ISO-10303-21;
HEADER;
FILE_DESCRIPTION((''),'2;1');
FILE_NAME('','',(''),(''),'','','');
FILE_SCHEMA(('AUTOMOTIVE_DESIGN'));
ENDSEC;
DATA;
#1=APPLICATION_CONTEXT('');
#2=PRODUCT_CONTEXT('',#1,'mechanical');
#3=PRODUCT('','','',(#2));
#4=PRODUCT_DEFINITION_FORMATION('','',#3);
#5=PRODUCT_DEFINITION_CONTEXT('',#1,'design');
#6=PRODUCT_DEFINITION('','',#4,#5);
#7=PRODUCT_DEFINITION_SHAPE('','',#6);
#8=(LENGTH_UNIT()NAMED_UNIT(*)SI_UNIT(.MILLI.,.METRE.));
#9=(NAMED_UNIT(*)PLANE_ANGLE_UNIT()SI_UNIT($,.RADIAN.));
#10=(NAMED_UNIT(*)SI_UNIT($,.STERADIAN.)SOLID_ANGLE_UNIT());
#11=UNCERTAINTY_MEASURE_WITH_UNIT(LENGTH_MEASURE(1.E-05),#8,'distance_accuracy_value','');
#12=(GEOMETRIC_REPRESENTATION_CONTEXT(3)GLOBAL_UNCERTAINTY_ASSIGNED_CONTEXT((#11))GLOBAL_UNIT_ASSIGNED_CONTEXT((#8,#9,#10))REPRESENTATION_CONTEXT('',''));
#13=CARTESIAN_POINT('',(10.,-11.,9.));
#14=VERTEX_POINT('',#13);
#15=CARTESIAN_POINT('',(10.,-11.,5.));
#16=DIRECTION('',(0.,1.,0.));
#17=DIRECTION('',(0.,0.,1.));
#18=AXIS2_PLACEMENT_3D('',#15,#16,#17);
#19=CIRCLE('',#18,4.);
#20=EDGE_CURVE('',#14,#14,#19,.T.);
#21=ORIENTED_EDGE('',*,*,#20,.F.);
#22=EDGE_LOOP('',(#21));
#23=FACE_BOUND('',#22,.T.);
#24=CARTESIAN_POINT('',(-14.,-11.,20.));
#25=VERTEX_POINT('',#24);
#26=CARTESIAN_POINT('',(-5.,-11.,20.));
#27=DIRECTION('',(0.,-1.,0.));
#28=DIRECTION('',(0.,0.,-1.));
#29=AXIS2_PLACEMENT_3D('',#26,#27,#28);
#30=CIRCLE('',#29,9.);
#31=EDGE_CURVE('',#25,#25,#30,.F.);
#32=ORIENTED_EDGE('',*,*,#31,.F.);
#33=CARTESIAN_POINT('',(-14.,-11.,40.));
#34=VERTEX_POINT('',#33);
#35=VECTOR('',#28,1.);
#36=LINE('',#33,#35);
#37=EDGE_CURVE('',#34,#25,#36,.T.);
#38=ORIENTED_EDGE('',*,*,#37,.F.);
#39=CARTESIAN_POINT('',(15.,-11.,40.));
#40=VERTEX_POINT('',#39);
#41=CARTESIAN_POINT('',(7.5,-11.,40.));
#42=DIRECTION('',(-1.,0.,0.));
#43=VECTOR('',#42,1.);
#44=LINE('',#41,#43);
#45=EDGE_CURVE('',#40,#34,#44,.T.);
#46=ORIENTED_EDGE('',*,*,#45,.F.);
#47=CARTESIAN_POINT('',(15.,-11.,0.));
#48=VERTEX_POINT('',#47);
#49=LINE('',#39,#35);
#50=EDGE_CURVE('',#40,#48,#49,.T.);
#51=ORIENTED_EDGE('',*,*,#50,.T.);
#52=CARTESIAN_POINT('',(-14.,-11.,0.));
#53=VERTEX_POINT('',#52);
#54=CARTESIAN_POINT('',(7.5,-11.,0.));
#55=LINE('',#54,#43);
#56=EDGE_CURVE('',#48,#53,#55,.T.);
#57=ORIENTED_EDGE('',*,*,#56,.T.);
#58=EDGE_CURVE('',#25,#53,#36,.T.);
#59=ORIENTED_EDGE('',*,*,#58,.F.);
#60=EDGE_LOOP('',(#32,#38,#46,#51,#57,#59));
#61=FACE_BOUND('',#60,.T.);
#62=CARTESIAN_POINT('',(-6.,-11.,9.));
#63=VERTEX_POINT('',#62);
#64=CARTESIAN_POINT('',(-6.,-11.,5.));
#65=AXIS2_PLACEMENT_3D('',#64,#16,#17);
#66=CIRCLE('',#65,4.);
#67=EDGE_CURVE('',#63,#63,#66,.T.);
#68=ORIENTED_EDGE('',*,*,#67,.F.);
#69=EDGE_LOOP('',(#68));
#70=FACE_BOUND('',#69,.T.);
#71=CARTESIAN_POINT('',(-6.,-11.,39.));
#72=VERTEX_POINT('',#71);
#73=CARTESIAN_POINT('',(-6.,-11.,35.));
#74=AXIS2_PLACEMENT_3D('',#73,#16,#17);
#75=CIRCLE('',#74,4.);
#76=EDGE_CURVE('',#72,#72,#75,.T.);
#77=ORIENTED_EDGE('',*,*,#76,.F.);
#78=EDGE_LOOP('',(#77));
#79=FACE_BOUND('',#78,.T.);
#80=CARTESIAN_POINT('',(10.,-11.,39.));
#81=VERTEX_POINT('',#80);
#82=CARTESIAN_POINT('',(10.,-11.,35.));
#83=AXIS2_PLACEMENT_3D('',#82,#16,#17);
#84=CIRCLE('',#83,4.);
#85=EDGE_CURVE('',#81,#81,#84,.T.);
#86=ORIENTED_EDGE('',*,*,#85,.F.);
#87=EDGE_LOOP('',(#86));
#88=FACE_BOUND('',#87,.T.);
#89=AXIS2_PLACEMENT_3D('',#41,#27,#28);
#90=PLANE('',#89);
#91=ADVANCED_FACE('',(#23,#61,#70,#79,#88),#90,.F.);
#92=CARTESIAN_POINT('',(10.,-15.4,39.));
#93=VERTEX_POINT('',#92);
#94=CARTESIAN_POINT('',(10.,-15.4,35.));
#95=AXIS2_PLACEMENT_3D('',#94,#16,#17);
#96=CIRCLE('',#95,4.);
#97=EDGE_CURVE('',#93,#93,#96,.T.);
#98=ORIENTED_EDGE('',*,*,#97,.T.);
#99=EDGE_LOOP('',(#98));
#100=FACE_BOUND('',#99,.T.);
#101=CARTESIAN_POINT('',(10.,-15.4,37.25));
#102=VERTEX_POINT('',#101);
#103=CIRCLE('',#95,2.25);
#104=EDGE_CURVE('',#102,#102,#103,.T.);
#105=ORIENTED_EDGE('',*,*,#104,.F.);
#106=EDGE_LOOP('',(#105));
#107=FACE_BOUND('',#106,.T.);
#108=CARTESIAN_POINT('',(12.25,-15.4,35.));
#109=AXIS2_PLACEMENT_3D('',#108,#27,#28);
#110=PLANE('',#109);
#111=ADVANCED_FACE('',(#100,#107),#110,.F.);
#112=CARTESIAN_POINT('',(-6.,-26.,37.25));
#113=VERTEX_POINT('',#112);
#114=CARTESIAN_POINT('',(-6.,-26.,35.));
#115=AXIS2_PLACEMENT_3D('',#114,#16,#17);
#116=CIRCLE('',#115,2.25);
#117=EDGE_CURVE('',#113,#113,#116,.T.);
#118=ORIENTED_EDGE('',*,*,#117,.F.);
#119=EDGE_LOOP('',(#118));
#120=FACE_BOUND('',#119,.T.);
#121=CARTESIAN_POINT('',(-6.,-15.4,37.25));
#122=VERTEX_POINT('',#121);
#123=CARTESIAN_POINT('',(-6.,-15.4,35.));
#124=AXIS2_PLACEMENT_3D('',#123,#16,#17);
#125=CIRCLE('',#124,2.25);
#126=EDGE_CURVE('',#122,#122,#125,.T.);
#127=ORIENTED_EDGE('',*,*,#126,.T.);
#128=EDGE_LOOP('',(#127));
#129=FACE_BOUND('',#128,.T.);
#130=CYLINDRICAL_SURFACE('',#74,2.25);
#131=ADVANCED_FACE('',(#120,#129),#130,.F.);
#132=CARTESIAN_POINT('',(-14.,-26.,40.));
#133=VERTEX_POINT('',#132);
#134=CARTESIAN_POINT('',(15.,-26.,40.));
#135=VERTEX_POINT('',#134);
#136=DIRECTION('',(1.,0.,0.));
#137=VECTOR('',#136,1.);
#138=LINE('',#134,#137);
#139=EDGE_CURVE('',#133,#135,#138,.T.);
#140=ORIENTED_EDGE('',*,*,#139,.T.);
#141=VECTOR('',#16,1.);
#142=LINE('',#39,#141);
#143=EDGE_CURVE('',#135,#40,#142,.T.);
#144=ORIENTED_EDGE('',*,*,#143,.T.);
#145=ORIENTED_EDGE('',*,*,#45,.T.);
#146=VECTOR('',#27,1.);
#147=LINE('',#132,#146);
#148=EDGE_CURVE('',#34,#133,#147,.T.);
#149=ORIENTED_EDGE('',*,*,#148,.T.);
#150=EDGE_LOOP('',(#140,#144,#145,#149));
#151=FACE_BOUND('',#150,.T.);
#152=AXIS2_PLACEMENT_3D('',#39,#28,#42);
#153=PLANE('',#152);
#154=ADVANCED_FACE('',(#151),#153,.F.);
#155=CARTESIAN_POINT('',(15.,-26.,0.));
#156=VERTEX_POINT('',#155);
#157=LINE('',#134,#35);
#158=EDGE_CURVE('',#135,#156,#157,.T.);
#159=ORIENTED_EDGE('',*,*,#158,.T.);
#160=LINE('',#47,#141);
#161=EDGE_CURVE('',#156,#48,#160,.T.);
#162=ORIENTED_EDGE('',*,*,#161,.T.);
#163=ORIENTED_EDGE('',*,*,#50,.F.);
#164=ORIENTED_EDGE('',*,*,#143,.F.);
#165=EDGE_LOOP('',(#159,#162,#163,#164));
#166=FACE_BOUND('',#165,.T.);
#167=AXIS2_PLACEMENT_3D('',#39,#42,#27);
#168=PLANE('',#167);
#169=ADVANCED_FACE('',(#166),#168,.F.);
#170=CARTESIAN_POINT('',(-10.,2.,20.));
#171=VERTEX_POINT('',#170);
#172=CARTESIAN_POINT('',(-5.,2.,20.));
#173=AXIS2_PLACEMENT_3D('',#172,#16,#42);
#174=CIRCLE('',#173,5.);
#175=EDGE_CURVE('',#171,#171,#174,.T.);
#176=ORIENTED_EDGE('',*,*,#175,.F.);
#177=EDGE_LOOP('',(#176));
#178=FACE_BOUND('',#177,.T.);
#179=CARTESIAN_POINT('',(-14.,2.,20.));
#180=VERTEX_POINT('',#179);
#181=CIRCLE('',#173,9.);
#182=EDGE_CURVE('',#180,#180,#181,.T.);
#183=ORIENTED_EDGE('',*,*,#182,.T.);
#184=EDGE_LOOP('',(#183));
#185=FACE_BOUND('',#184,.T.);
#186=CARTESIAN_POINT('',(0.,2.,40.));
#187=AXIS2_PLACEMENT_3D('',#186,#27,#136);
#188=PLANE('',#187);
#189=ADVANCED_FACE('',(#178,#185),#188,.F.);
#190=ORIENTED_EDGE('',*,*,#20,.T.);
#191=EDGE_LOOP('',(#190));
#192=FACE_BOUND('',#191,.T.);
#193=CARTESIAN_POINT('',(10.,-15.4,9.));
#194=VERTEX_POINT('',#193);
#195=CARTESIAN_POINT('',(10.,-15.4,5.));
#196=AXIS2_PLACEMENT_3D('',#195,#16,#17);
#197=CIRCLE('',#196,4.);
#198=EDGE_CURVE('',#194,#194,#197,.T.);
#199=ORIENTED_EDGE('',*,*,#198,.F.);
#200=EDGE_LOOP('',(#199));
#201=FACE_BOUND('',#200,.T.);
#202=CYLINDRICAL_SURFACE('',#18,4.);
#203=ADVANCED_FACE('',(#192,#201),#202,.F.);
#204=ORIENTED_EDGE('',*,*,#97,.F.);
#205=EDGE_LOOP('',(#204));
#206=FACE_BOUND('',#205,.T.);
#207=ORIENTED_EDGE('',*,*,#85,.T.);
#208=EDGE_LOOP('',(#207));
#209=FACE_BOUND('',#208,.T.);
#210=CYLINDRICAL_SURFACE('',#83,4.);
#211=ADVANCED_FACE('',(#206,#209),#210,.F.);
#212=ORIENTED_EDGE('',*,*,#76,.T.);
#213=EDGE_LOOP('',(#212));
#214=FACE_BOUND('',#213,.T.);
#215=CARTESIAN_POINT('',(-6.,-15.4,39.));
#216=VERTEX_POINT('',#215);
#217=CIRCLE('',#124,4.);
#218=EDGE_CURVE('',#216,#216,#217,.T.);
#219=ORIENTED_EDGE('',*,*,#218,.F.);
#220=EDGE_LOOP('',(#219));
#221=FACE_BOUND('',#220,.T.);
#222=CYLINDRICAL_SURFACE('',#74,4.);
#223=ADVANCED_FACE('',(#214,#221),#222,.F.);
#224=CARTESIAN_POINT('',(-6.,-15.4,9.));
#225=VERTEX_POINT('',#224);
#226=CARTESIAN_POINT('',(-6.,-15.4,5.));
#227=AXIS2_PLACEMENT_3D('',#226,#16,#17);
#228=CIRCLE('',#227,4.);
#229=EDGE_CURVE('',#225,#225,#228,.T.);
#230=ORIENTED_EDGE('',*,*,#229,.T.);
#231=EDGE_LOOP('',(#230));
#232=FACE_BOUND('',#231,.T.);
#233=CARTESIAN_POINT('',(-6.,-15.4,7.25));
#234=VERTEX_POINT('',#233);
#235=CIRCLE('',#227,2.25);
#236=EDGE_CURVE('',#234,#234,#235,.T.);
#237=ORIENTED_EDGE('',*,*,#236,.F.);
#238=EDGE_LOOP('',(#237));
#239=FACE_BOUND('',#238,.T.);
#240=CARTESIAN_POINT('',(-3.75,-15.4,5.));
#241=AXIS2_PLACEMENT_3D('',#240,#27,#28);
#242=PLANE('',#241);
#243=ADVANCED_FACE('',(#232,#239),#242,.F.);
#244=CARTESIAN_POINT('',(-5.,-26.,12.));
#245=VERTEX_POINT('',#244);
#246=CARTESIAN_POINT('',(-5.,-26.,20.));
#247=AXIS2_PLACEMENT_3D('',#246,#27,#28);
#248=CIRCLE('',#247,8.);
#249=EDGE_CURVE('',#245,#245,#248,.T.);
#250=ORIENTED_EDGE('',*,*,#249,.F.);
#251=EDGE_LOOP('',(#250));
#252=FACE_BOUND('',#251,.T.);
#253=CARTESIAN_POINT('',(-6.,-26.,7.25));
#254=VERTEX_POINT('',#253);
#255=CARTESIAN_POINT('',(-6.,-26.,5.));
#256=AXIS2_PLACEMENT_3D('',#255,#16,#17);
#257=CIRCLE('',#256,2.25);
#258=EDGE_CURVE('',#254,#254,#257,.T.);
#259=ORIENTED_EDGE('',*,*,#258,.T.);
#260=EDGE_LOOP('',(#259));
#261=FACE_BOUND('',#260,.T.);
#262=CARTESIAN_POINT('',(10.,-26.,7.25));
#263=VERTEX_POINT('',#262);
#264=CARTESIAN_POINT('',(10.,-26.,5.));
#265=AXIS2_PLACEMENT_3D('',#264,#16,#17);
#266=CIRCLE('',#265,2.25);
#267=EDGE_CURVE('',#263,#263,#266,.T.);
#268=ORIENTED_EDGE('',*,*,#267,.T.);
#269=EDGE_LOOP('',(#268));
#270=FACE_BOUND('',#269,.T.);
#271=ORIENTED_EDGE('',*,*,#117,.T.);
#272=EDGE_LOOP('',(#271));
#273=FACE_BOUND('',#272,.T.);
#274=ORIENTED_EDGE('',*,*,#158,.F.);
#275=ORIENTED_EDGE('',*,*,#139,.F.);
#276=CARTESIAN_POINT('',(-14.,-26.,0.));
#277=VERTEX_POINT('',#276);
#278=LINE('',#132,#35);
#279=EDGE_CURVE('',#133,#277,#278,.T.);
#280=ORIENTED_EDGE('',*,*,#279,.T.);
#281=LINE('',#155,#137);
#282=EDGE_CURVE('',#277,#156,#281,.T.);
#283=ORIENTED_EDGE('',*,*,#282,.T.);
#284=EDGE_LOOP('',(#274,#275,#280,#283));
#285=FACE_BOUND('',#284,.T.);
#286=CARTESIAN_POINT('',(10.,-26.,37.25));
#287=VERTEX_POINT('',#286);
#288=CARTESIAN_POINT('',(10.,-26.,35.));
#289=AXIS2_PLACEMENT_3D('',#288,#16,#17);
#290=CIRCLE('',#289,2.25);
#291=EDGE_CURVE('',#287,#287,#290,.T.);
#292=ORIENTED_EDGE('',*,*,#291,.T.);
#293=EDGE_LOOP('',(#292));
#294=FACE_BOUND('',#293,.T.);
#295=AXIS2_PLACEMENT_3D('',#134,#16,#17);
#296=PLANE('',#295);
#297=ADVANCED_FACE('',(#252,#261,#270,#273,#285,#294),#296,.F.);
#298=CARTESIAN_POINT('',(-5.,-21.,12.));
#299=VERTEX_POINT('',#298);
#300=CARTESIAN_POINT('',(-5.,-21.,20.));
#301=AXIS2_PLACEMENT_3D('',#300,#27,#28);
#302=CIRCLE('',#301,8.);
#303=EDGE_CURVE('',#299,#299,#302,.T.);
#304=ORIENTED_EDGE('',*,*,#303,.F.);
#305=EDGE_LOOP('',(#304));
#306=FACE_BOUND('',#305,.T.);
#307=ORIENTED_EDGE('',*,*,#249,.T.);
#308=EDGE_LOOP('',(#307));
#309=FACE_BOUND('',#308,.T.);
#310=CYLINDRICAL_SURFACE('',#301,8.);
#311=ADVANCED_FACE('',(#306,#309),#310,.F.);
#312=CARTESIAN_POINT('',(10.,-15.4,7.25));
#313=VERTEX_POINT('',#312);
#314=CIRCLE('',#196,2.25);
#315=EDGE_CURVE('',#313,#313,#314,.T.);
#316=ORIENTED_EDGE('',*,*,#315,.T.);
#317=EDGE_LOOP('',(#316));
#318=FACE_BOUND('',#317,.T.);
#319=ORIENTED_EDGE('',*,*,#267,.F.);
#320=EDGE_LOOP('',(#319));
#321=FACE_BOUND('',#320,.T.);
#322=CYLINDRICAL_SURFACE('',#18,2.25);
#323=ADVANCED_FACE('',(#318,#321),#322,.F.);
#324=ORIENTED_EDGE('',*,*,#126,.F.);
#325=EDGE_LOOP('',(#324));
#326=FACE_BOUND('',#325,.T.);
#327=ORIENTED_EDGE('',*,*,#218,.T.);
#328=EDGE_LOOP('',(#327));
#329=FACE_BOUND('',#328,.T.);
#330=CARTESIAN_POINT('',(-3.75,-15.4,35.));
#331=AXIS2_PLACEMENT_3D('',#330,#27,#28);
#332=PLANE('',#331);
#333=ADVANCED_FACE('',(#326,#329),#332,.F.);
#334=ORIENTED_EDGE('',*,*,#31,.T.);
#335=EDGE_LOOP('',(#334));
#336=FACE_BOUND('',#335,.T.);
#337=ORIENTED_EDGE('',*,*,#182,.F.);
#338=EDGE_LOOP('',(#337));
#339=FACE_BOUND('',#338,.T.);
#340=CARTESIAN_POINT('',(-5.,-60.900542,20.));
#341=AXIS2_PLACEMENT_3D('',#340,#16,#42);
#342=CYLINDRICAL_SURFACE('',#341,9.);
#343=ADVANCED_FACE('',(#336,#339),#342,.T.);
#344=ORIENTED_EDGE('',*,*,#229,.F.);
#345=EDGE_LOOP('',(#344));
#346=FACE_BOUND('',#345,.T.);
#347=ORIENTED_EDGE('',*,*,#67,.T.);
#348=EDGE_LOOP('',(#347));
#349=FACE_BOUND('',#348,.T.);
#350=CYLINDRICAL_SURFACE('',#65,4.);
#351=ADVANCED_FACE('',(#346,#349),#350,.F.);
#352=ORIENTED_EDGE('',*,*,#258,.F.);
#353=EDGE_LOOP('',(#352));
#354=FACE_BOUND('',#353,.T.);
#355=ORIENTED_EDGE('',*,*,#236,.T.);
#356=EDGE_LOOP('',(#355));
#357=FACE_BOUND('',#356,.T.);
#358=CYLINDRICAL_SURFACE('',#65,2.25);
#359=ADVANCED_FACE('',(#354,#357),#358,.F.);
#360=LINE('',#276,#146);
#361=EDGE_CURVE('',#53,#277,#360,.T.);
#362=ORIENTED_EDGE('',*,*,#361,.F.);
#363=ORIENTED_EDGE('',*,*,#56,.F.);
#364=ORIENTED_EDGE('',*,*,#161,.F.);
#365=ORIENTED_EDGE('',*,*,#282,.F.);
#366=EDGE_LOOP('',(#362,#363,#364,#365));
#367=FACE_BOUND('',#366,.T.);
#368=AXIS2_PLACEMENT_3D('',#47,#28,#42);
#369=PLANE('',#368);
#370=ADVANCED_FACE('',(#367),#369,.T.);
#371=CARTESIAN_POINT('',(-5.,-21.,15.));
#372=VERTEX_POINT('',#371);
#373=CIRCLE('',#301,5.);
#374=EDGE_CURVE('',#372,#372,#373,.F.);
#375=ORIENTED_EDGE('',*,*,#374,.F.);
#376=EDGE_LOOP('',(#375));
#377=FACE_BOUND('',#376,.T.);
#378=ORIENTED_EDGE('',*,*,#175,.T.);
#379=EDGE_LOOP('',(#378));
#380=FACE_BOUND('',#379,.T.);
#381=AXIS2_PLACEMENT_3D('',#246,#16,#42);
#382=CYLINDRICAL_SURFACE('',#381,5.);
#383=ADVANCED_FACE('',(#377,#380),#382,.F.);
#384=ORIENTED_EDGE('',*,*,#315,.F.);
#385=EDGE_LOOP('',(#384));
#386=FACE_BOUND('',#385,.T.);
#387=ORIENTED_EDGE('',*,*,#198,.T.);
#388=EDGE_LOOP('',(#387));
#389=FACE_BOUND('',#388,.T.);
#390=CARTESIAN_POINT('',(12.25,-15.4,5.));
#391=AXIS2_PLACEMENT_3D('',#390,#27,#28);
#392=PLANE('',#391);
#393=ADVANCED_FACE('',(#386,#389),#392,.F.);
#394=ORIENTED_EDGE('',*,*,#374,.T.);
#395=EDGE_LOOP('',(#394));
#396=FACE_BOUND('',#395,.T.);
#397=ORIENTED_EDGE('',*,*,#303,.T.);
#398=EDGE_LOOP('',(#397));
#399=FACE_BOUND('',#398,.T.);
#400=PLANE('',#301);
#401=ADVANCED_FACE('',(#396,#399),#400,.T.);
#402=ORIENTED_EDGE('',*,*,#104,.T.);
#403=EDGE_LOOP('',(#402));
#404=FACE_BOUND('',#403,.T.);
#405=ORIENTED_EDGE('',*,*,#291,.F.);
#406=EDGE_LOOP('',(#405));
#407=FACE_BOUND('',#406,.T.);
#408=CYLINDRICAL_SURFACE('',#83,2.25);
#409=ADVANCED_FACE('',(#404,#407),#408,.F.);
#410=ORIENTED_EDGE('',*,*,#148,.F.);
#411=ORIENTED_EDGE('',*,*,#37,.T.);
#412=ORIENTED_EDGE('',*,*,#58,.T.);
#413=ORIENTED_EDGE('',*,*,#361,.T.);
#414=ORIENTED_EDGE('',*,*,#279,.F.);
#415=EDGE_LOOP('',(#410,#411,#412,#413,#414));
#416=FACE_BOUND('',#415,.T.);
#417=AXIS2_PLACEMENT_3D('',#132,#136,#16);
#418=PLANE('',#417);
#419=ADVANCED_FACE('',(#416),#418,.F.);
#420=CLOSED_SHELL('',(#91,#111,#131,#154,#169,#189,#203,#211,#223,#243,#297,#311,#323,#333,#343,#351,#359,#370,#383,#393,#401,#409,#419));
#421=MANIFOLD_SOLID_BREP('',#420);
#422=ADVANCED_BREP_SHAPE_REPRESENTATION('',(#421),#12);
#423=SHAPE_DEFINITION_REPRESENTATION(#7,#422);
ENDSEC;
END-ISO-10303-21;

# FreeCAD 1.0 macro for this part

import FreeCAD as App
import Part
import Sketcher

V = App.Vector

doc = App.newDocument("Part")
params = doc.addObject("Spreadsheet::Sheet", "Params")
for row, (alias, value) in enumerate([
    ("sketch1_width", "29 mm"),
    ("sketch1_height", "13 mm"),
    ("sketch1_height2", "28 mm"),
    ("sketch1_width2", "21.5 mm"),
    ("pad1_length", "40 mm"),
    ("sketch2_diameter", "10 mm"),
    ("sketch3_diameter", "18 mm"),
    ("pocket2_length", "13 mm"),
    ("sketch4_diameter", "4.5 mm"),
    ("hole_diameter", "4.5 mm"),
    ("hole_cbore_diameter", "8 mm"),
    ("hole_cbore_depth", "4.4 mm"),
    ("sketch5_diameter", "16 mm"),
    ("pocket3_length", "5 mm"),
], start=1):
    params.set(f"A{row}", alias)
    params.set(f"B{row}", "=" + value)
    params.setAlias(f"B{row}", alias)

body = doc.addObject("PartDesign::Body", "Body")

sketch1 = body.newObject("Sketcher::SketchObject", "Sketch")
sketch1.AttachmentSupport = (doc.getObject("XY_Plane"), [""])
sketch1.MapMode = "FlatFace"
sketch1.addGeometry([
    Part.LineSegment(V(8, -11, 0), V(8, 2, 0)),
    Part.LineSegment(V(8, 2, 0), V(-14, 2, 0)),
    Part.LineSegment(V(-14, 2, 0), V(-14, -26, 0)),
    Part.LineSegment(V(-14, -26, 0), V(15, -26, 0)),
    Part.LineSegment(V(15, -26, 0), V(15, -11, 0)),
    Part.LineSegment(V(15, -11, 0), V(8, -11, 0)),
], False)
sketch1.addConstraint([
    Sketcher.Constraint("Coincident", 0, 2, 1, 1),
    Sketcher.Constraint("Coincident", 1, 2, 2, 1),
    Sketcher.Constraint("Coincident", 2, 2, 3, 1),
    Sketcher.Constraint("Coincident", 3, 2, 4, 1),
    Sketcher.Constraint("Coincident", 4, 2, 5, 1),
    Sketcher.Constraint("Coincident", 5, 2, 0, 1),
    Sketcher.Constraint("Vertical", 0),
    Sketcher.Constraint("Horizontal", 1),
    Sketcher.Constraint("Vertical", 2),
    Sketcher.Constraint("Horizontal", 3),
    Sketcher.Constraint("Vertical", 4),
    Sketcher.Constraint("Horizontal", 5),
    Sketcher.Constraint("DistanceX", 3, 1, 3, 2, 29.0),
    Sketcher.Constraint("DistanceY", 0, 1, 0, 2, 13.0),
    Sketcher.Constraint("DistanceY", 2, 2, 2, 1, 28.0),
    Sketcher.Constraint("DistanceX", 1, 2, 1, 1, 21.5),
    Sketcher.Constraint("DistanceY", -1, 1, 0, 2, 2.0),
    Sketcher.Constraint("DistanceX", 1, 2, -1, 1, 14.0),
])
sketch1.setExpression("Constraints[12]", "Params.sketch1_width")
sketch1.setExpression("Constraints[13]", "Params.sketch1_height")
sketch1.setExpression("Constraints[14]", "Params.sketch1_height2")
sketch1.setExpression("Constraints[15]", "Params.sketch1_width2")
pad1 = body.newObject("PartDesign::Pad", "Pad")
pad1.Profile = sketch1
pad1.setExpression("Length", "Params.pad1_length")

sketch2 = body.newObject("Sketcher::SketchObject", "Sketch001")
sketch2.AttachmentSupport = (doc.getObject("XZ_Plane"), [""])
sketch2.MapMode = "FlatFace"
sketch2.AttachmentOffset = App.Placement(V(0, 0, -2), App.Rotation())
sketch2.addGeometry(Part.Circle(V(-5, 20, 0), V(0, 0, 1), 5), False)
sketch2.addConstraint([
    Sketcher.Constraint("Diameter", 0, 10.0),
    Sketcher.Constraint("DistanceX", 0, 3, -1, 1, 5.0),
    Sketcher.Constraint("DistanceY", -1, 1, 0, 3, 20.0),
])
sketch2.setExpression("Constraints[0]", "Params.sketch2_diameter")
pocket1 = body.newObject("PartDesign::Pocket", "Pocket")
pocket1.Profile = sketch2
pocket1.Type = "ThroughAll"
pocket1.Reversed = True

sketch3 = body.newObject("Sketcher::SketchObject", "Sketch002")
sketch3.AttachmentSupport = (doc.getObject("XZ_Plane"), [""])
sketch3.MapMode = "FlatFace"
sketch3.AttachmentOffset = App.Placement(V(0, 0, -2), App.Rotation())
sketch3.addGeometry([
    Part.LineSegment(V(-21, -7, 0), V(-21, 47, 0)),
    Part.LineSegment(V(-21, 47, 0), V(22, 47, 0)),
    Part.LineSegment(V(22, 47, 0), V(22, -7, 0)),
    Part.LineSegment(V(22, -7, 0), V(-21, -7, 0)),
    Part.Circle(V(-5, 20, 0), V(0, 0, 1), 9),
], False)
sketch3.addConstraint([
    Sketcher.Constraint("Coincident", 0, 2, 1, 1),
    Sketcher.Constraint("Coincident", 1, 2, 2, 1),
    Sketcher.Constraint("Coincident", 2, 2, 3, 1),
    Sketcher.Constraint("Coincident", 3, 2, 0, 1),
    Sketcher.Constraint("Vertical", 0),
    Sketcher.Constraint("Horizontal", 1),
    Sketcher.Constraint("Vertical", 2),
    Sketcher.Constraint("Horizontal", 3),
    Sketcher.Constraint("Diameter", 4, 18.0),
    Sketcher.Constraint("DistanceX", 4, 3, -1, 1, 5.0),
    Sketcher.Constraint("DistanceY", -1, 1, 4, 3, 20.0),
    Sketcher.Constraint("DistanceX", 1, 1, 1, 2, 42.358),
    Sketcher.Constraint("DistanceY", 0, 1, 0, 2, 53.358),
    Sketcher.Constraint("DistanceX", 0, 2, -1, 1, 20.679),
    Sketcher.Constraint("DistanceY", -1, 1, 0, 2, 46.679),
])
sketch3.setExpression("Constraints[8]", "Params.sketch3_diameter")
pocket2 = body.newObject("PartDesign::Pocket", "Pocket001")
pocket2.Profile = sketch3
pocket2.setExpression("Length", "Params.pocket2_length")
pocket2.Reversed = True

sketch4 = body.newObject("Sketcher::SketchObject", "Sketch003")
sketch4.AttachmentSupport = (doc.getObject("XZ_Plane"), [""])
sketch4.MapMode = "FlatFace"
sketch4.AttachmentOffset = App.Placement(V(0, 0, 11), App.Rotation())
sketch4.addGeometry([
    Part.Circle(V(10, 35, 0), V(0, 0, 1), 2.2),
    Part.Circle(V(10, 5, 0), V(0, 0, 1), 2.2),
    Part.Circle(V(-6, 35, 0), V(0, 0, 1), 2.2),
    Part.Circle(V(-6, 5, 0), V(0, 0, 1), 2.2),
], False)
sketch4.addConstraint([
    Sketcher.Constraint("Equal", 0, 1),
    Sketcher.Constraint("Equal", 1, 2),
    Sketcher.Constraint("Equal", 2, 3),
    Sketcher.Constraint("Horizontal", 0, 3, 2, 3),
    Sketcher.Constraint("Horizontal", 1, 3, 3, 3),
    Sketcher.Constraint("Vertical", 0, 3, 1, 3),
    Sketcher.Constraint("Vertical", 2, 3, 3, 3),
    Sketcher.Constraint("Diameter", 0, 4.5),
    Sketcher.Constraint("DistanceX", -1, 1, 0, 3, 10.0),
    Sketcher.Constraint("DistanceY", -1, 1, 0, 3, 35.0),
    Sketcher.Constraint("DistanceY", -1, 1, 1, 3, 5.0),
    Sketcher.Constraint("DistanceX", 2, 3, -1, 1, 6.0),
])
sketch4.setExpression("Constraints[7]", "Params.sketch4_diameter")
doc.recompute()
hole = body.newObject("PartDesign::Hole", "Hole")
hole.Profile = sketch4
hole.ThreadType = "None"
hole.setExpression("Diameter", "Params.hole_diameter")
hole.DepthType = "ThroughAll"
hole.HoleCutType = "Counterbore"
hole.setExpression("HoleCutDiameter", "Params.hole_cbore_diameter")
hole.setExpression("HoleCutDepth", "Params.hole_cbore_depth")
hole.Reversed = True

sketch5 = body.newObject("Sketcher::SketchObject", "Sketch004")
sketch5.AttachmentSupport = (doc.getObject("XZ_Plane"), [""])
sketch5.MapMode = "FlatFace"
sketch5.AttachmentOffset = App.Placement(V(0, 0, 26), App.Rotation())
sketch5.addGeometry(Part.Circle(V(-5, 20, 0), V(0, 0, 1), 8), False)
sketch5.addConstraint([
    Sketcher.Constraint("Diameter", 0, 16.0),
    Sketcher.Constraint("DistanceX", 0, 3, -1, 1, 5.0),
    Sketcher.Constraint("DistanceY", -1, 1, 0, 3, 20.0),
])
sketch5.setExpression("Constraints[0]", "Params.sketch5_diameter")
pocket3 = body.newObject("PartDesign::Pocket", "Pocket002")
pocket3.Profile = sketch5
pocket3.setExpression("Length", "Params.pocket3_length")

doc.recompute()
